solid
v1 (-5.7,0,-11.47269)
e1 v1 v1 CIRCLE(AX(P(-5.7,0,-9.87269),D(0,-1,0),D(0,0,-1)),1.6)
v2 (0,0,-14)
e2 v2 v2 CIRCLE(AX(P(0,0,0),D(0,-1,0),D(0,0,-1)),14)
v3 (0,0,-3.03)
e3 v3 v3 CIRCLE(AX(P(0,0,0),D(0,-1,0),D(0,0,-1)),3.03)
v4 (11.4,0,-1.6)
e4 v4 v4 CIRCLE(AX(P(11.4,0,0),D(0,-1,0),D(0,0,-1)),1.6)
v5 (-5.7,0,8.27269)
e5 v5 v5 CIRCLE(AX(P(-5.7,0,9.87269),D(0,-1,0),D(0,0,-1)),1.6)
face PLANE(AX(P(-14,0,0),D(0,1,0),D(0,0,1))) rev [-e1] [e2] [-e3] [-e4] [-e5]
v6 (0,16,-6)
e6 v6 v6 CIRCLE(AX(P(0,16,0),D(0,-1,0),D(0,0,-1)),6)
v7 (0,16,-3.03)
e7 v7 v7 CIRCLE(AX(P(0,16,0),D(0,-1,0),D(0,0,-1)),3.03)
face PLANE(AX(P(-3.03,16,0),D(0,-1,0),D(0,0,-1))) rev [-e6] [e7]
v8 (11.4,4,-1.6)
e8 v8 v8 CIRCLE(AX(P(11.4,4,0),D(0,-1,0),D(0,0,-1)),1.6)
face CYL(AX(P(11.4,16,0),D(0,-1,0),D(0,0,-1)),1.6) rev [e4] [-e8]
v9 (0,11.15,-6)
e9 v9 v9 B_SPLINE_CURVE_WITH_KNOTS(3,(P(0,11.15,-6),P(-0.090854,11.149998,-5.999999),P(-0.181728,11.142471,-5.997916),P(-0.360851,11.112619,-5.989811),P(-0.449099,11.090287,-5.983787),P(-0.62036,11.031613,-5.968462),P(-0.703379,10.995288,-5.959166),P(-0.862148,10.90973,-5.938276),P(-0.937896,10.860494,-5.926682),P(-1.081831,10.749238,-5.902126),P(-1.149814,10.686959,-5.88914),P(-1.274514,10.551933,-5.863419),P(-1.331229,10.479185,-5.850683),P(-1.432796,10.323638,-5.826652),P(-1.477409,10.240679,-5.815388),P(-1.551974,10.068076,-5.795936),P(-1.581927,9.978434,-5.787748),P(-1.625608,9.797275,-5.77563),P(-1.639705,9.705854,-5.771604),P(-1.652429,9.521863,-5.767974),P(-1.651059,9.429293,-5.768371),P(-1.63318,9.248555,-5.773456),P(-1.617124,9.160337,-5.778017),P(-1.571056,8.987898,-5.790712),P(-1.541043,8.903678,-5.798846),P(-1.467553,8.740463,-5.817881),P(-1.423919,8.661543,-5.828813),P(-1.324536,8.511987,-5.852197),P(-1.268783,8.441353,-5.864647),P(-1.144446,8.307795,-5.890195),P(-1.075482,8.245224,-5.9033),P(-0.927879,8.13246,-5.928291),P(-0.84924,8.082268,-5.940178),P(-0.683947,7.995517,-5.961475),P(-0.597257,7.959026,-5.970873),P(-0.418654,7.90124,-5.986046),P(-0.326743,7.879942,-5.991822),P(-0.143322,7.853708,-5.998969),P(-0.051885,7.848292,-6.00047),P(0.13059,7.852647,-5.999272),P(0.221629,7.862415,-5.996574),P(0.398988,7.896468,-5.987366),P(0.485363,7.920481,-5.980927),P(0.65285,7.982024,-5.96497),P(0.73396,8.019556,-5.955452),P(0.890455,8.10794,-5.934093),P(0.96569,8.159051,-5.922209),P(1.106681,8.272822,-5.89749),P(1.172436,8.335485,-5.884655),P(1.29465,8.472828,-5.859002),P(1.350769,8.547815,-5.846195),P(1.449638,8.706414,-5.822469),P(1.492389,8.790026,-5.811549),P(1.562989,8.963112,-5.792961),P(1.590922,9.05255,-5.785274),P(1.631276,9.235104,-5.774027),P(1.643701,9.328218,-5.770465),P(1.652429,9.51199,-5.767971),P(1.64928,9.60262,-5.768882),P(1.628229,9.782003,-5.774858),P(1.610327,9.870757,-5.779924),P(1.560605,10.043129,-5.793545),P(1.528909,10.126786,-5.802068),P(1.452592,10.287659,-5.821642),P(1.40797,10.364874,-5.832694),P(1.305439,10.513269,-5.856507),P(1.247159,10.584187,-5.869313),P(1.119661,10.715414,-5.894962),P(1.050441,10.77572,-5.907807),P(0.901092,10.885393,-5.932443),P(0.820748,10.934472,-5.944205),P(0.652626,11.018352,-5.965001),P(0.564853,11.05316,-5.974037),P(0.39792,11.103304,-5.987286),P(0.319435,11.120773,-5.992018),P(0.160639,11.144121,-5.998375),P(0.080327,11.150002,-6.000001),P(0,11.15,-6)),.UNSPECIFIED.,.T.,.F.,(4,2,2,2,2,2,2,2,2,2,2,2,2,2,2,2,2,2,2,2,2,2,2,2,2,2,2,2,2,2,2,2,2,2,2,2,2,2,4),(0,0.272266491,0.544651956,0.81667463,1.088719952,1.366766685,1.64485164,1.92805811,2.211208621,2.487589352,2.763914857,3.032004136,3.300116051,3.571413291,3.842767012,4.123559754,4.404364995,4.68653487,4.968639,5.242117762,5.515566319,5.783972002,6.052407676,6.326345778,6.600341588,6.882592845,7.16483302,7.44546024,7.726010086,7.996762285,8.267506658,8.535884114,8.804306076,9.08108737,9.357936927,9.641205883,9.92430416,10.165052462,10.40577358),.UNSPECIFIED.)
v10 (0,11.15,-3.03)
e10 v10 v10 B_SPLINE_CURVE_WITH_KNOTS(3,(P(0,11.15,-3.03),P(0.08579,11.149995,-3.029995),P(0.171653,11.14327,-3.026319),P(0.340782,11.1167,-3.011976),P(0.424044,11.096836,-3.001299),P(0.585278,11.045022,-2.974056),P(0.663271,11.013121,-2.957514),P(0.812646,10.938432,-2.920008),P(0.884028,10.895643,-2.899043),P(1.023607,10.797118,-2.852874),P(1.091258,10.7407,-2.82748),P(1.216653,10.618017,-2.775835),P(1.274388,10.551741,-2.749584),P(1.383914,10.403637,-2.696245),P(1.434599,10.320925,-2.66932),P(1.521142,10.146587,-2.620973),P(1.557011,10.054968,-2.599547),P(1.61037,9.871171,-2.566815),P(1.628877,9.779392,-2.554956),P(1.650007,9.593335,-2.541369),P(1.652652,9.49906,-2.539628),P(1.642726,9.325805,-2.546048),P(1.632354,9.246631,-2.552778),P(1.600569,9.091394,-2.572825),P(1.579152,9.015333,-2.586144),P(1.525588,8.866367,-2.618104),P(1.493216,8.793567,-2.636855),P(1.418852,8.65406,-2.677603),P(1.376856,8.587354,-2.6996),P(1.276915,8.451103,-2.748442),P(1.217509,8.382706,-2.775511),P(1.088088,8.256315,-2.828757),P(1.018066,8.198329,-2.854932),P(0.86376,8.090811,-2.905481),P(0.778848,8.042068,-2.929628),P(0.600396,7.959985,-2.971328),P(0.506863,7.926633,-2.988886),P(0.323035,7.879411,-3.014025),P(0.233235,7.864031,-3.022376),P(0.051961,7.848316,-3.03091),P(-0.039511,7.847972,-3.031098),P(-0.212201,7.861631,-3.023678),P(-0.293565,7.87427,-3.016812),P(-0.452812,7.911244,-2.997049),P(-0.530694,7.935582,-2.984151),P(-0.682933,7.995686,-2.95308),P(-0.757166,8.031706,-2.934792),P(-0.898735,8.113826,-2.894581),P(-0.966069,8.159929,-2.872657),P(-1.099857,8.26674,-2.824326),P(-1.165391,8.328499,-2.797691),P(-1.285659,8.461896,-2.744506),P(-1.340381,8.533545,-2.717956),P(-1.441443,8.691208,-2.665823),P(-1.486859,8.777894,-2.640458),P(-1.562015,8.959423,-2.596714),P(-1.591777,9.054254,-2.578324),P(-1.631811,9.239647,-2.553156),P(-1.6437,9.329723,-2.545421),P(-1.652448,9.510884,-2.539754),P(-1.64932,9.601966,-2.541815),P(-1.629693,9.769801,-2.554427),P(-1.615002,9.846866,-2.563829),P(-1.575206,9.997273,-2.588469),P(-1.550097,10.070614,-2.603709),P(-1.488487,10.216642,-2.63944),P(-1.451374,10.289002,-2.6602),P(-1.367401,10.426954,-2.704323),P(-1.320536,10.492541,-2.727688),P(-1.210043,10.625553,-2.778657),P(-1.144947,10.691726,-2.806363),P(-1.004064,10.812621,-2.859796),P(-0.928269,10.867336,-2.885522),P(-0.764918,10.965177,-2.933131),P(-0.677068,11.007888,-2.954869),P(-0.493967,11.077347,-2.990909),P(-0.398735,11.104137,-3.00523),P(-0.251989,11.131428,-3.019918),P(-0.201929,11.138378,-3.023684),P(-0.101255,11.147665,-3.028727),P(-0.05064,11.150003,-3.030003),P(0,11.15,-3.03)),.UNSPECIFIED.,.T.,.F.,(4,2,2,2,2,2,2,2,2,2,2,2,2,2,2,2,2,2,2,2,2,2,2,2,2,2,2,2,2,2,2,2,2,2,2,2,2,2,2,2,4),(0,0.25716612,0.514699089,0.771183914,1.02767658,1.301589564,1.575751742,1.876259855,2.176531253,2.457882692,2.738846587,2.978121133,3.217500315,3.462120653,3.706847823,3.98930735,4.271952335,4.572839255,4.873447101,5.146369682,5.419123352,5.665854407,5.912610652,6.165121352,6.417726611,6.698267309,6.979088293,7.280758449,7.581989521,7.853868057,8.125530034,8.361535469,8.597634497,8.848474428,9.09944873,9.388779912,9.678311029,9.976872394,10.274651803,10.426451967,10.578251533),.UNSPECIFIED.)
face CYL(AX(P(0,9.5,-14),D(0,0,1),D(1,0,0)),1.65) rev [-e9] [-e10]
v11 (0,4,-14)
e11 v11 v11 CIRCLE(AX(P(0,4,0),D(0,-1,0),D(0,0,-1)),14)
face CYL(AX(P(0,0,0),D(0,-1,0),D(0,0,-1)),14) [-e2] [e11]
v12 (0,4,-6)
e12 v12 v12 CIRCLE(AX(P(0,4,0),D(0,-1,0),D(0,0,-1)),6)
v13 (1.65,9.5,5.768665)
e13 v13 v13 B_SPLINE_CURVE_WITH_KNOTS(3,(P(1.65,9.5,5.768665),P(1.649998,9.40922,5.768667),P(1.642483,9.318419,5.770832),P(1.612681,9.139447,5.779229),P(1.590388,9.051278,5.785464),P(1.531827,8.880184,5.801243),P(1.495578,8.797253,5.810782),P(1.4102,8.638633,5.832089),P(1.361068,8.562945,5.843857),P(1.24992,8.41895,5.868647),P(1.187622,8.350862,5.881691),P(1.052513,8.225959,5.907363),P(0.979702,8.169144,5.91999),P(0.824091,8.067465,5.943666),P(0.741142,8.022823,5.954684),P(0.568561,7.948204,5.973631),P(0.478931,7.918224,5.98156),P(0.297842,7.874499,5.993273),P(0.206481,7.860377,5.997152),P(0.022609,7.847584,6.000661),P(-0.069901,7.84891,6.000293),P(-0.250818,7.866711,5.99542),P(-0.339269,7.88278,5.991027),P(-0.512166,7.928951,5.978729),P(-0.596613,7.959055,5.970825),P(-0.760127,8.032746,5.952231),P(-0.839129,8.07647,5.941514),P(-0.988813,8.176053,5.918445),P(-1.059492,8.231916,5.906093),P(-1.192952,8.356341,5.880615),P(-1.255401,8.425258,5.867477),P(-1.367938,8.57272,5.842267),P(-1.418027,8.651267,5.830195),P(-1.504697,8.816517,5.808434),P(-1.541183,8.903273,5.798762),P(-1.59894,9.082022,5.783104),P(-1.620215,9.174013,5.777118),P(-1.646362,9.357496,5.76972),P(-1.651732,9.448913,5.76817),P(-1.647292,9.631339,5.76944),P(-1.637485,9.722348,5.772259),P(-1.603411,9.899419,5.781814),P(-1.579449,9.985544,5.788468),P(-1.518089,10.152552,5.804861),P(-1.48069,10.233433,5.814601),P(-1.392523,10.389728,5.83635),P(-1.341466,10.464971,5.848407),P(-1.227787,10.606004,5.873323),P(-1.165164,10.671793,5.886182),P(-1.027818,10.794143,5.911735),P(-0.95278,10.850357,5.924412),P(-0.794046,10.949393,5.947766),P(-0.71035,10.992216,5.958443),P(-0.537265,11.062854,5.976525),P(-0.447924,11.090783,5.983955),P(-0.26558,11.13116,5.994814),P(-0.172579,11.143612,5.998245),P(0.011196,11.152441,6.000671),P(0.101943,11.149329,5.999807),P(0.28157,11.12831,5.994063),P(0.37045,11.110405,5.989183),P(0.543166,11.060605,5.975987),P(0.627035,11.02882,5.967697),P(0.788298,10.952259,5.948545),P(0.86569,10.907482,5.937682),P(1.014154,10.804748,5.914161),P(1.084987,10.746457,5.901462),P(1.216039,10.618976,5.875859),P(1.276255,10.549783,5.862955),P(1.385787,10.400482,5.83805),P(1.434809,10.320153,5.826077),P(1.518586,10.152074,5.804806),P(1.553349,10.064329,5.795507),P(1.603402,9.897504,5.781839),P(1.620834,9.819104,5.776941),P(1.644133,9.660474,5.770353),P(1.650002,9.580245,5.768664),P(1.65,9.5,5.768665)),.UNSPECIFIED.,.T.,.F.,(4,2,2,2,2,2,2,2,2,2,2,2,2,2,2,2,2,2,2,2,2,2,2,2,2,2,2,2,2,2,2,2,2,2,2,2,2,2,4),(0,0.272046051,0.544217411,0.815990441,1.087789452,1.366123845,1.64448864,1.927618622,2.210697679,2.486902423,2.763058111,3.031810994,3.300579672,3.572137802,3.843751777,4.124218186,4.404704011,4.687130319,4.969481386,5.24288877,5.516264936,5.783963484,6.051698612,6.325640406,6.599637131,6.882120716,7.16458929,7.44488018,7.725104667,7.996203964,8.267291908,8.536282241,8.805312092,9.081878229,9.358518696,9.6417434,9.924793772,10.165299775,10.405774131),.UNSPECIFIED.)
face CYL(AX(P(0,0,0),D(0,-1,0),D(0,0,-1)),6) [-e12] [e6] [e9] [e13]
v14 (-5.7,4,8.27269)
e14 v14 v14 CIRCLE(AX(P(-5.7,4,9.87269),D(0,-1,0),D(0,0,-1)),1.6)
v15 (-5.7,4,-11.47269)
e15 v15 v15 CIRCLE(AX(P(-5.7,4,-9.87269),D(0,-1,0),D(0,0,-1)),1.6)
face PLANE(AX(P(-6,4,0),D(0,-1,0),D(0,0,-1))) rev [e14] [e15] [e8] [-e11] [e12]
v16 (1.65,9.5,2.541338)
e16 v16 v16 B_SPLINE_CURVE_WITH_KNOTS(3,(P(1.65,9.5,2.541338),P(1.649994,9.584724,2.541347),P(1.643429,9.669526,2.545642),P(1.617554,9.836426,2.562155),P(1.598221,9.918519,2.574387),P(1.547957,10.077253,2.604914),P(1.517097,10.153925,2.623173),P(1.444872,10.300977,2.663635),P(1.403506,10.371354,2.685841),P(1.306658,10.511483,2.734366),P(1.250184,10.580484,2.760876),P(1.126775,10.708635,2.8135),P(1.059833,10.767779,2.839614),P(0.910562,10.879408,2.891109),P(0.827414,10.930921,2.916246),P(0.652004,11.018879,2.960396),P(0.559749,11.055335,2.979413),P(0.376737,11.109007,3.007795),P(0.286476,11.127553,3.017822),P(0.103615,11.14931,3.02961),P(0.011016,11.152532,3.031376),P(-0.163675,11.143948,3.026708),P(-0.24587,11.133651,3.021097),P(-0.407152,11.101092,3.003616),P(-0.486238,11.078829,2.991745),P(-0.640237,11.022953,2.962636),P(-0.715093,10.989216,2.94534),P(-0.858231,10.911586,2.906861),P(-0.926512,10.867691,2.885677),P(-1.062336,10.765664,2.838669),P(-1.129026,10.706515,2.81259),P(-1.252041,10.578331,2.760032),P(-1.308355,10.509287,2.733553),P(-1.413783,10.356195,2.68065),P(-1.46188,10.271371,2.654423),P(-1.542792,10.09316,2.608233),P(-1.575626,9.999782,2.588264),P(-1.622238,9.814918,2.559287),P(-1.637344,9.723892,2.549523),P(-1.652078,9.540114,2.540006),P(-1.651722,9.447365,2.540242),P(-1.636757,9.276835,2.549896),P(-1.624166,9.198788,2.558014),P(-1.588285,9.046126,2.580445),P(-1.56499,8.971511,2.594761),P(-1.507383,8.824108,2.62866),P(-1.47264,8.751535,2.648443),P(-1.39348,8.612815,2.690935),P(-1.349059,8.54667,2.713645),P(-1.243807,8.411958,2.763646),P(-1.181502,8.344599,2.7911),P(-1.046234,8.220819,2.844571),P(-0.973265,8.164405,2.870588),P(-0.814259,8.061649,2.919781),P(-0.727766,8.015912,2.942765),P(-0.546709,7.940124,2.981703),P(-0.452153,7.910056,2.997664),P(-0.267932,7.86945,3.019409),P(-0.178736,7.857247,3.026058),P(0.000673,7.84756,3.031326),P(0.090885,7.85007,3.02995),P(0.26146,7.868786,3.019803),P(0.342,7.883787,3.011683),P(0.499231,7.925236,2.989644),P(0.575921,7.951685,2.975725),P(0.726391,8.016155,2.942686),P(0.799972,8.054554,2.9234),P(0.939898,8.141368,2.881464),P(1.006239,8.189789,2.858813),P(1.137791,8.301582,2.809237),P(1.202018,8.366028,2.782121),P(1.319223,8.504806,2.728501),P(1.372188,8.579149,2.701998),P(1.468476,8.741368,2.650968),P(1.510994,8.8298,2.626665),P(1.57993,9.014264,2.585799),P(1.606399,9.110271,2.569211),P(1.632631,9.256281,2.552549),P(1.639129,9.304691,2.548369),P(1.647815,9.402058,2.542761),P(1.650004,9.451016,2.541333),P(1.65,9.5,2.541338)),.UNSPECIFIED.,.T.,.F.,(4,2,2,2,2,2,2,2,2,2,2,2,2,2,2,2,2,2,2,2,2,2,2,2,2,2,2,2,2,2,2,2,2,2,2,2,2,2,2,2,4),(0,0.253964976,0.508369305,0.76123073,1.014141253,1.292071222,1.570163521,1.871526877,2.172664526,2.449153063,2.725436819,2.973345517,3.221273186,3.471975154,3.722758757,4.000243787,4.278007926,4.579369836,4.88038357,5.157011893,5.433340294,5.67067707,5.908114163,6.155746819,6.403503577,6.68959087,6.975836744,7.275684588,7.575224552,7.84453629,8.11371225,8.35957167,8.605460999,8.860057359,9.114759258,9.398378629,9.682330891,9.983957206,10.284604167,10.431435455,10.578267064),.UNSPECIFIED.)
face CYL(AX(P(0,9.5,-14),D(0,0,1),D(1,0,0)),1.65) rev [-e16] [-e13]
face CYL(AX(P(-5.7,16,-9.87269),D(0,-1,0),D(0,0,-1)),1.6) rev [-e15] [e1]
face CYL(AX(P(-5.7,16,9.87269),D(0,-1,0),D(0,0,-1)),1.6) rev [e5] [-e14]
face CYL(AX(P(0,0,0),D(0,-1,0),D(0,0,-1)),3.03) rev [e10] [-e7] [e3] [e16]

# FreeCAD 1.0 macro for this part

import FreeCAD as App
import Part
import Sketcher

V = App.Vector
Q = App.Units.Quantity

doc = App.newDocument("Part")
body = doc.addObject("PartDesign::Body", "Body")

# Sketch on XY plane
sketch1 = doc.addObject("Sketcher::SketchObject", "Sketch")
body.addObject(sketch1)
sketch1.AttachmentSupport = (doc.XY_Plane, [""])
sketch1.MapMode = "FlatFace"
sketch1.addGeometry(Part.LineSegment(V(-3.03, 0, 0), V(-3.03, 16, 0)), False)
sketch1.addGeometry(Part.LineSegment(V(-3.03, 16, 0), V(-6, 16, 0)), False)
sketch1.addGeometry(Part.LineSegment(V(-6, 16, 0), V(-6, 4, 0)), False)
sketch1.addGeometry(Part.LineSegment(V(-6, 4, 0), V(-14, 4, 0)), False)
sketch1.addGeometry(Part.LineSegment(V(-14, 4, 0), V(-14, 0, 0)), False)
sketch1.addGeometry(Part.LineSegment(V(-14, 0, 0), V(-3.03, 0, 0)), False)
sketch1.addConstraint(Sketcher.Constraint("Coincident", 0, 2, 1, 1))
sketch1.addConstraint(Sketcher.Constraint("Coincident", 1, 2, 2, 1))
sketch1.addConstraint(Sketcher.Constraint("Coincident", 2, 2, 3, 1))
sketch1.addConstraint(Sketcher.Constraint("Coincident", 3, 2, 4, 1))
sketch1.addConstraint(Sketcher.Constraint("Coincident", 4, 2, 5, 1))
sketch1.addConstraint(Sketcher.Constraint("Coincident", 5, 2, 0, 1))
sketch1.addConstraint(Sketcher.Constraint("Vertical", 0))
sketch1.addConstraint(Sketcher.Constraint("Horizontal", 1))
sketch1.addConstraint(Sketcher.Constraint("Vertical", 2))
sketch1.addConstraint(Sketcher.Constraint("Horizontal", 3))
sketch1.addConstraint(Sketcher.Constraint("Vertical", 4))
sketch1.addConstraint(Sketcher.Constraint("Horizontal", 5))
sketch1.addConstraint(Sketcher.Constraint("PointOnObject", 4, 2, -1))
sketch1.addConstraint(Sketcher.Constraint("DistanceX", 3, 2, 3, 1, Q("8 mm")))
sketch1.addConstraint(Sketcher.Constraint("DistanceY", 0, 1, 0, 2, Q("16 mm")))
sketch1.addConstraint(Sketcher.Constraint("DistanceY", 2, 2, 2, 1, Q("12 mm")))
sketch1.addConstraint(Sketcher.Constraint("DistanceX", 1, 2, -1, 1, Q("6 mm")))
sketch1.addConstraint(Sketcher.Constraint("DistanceX", 1, 2, 1, 1, Q("2.97 mm")))
revolution = doc.addObject("PartDesign::Revolution", "Revolution")
body.addObject(revolution)
revolution.Profile = sketch1
revolution.ReferenceAxis = (sketch1, ["V_Axis"])
revolution.Angle = 360

# Sketch on XZ plane
sketch2 = doc.addObject("Sketcher::SketchObject", "Sketch001")
body.addObject(sketch2)
sketch2.AttachmentSupport = (doc.XZ_Plane, [""])
sketch2.MapMode = "FlatFace"
sketch2.addGeometry(Part.Circle(V(11.4, 0, 0), V(0, 0, 1), 1.6), False)
sketch2.addGeometry(Part.Circle(V(-5.7, -9.87269, 0), V(0, 0, 1), 1.6), False)
sketch2.addGeometry(Part.Circle(V(-5.7, 9.87269, 0), V(0, 0, 1), 1.6), False)
sketch2.addConstraint(Sketcher.Constraint("Equal", 0, 1))
sketch2.addConstraint(Sketcher.Constraint("Equal", 1, 2))
sketch2.addConstraint(Sketcher.Constraint("Symmetric", 1, 3, 2, 3, -1))
sketch2.addConstraint(Sketcher.Constraint("PointOnObject", 0, 3, -1))
sketch2.addConstraint(Sketcher.Constraint("Diameter", 0, Q("3.2 mm")))
sketch2.addConstraint(Sketcher.Constraint("DistanceX", -1, 1, 0, 3, Q("11.4 mm")))
sketch2.addConstraint(Sketcher.Constraint("DistanceX", 1, 3, -1, 1, Q("5.7 mm")))
sketch2.addConstraint(Sketcher.Constraint("DistanceY", 1, 3, -1, 1, Q("9.87269 mm")))
pocket1 = doc.addObject("PartDesign::Pocket", "Pocket")
body.addObject(pocket1)
pocket1.Profile = sketch2
pocket1.Type = "ThroughAll"

# Sketch on XY plane
sketch3 = doc.addObject("Sketcher::SketchObject", "Sketch002")
body.addObject(sketch3)
sketch3.AttachmentSupport = (doc.XY_Plane, [""])
sketch3.MapMode = "FlatFace"
sketch3.AttachmentOffset = App.Placement(V(0, 0, 6), App.Rotation())
sketch3.addGeometry(Part.Circle(V(0, 9.5, 0), V(0, 0, 1), 1.65), False)
sketch3.addConstraint(Sketcher.Constraint("PointOnObject", 0, 3, -2))
sketch3.addConstraint(Sketcher.Constraint("Diameter", 0, Q("3.3 mm")))
sketch3.addConstraint(Sketcher.Constraint("DistanceY", -1, 1, 0, 3, Q("9.5 mm")))
pocket2 = doc.addObject("PartDesign::Pocket", "Pocket001")
body.addObject(pocket2)
pocket2.Profile = sketch3
pocket2.Type = "ThroughAll"

doc.recompute()
